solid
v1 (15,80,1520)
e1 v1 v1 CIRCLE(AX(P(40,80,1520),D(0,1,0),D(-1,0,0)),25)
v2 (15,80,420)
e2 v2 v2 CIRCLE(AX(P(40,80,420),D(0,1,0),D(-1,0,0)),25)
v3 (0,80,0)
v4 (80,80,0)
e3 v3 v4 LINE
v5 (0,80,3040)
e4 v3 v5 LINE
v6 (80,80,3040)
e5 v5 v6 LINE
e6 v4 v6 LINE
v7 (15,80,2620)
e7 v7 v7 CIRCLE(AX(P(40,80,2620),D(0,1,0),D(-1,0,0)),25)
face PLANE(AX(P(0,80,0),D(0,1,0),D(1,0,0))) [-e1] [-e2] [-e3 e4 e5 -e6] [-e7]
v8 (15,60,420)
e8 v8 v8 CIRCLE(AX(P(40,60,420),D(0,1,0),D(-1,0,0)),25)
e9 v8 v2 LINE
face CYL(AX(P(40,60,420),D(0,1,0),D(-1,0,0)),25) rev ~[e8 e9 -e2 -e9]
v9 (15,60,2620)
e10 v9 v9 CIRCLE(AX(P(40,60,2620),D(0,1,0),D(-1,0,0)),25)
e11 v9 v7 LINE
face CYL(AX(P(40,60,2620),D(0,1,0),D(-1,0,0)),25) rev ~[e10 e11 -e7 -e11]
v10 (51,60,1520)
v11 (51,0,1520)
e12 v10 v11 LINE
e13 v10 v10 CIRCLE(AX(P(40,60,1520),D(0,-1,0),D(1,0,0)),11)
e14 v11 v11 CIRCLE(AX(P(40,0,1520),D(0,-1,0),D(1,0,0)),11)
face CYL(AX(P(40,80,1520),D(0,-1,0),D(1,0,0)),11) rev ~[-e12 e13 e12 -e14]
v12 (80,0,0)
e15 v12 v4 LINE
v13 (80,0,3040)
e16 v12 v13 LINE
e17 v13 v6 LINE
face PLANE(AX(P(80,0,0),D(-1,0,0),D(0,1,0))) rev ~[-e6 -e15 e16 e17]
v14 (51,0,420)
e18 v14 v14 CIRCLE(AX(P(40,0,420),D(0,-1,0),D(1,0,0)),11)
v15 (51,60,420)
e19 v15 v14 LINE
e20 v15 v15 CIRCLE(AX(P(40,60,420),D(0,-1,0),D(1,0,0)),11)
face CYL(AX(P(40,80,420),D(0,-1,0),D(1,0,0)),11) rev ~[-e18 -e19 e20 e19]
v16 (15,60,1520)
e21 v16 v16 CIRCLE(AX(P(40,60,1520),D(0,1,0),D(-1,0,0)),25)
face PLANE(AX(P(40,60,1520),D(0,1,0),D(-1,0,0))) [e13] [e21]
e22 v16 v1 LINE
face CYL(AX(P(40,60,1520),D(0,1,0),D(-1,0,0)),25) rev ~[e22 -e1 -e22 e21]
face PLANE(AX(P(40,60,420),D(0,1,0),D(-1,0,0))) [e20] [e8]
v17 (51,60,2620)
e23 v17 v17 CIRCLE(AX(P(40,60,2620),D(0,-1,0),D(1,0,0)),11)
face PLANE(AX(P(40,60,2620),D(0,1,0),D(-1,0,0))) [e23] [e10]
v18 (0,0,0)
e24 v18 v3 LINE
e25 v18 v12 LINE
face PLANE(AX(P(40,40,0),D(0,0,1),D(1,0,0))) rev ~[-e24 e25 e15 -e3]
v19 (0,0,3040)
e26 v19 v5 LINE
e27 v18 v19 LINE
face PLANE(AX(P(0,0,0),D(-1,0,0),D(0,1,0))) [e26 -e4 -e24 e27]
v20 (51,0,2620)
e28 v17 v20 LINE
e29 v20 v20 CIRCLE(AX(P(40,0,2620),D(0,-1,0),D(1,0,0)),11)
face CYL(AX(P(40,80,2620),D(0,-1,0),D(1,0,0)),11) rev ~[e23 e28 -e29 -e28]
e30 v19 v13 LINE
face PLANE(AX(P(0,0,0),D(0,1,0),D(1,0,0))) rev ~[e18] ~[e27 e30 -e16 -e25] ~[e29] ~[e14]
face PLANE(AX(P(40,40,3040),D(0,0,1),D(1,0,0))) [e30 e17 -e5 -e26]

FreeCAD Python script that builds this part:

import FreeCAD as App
import Part
import Sketcher
Q = App.Units.Quantity


def add_polygon(sketch, points):
    """Adds a closed chain of lines whose ends are joined by coincident constraints."""
    first, n = sketch.GeometryCount, len(points)
    for a, b in zip(points, points[1:] + points[:1]):
        sketch.addGeometry(Part.LineSegment(App.Vector(*a, 0), App.Vector(*b, 0)), False)
    for i in range(n):
        sketch.addConstraint(Sketcher.Constraint("Coincident", first + i, 2, first + (i + 1) % n, 1))

doc = App.newDocument("Part")
body = doc.addObject("PartDesign::Body", "Body")

sketch1 = doc.addObject("Sketcher::SketchObject", "Sketch")
body.addObject(sketch1)
sketch1.AttachmentSupport = (doc.XY_Plane, [""])
sketch1.MapMode = "FlatFace"
add_polygon(sketch1, [(0, 80), (0, 0), (80, 0), (80, 80)])
sketch1.addConstraint(Sketcher.Constraint("Vertical", 0))
sketch1.addConstraint(Sketcher.Constraint("Horizontal", 1))
sketch1.addConstraint(Sketcher.Constraint("Vertical", 2))
sketch1.addConstraint(Sketcher.Constraint("Horizontal", 3))
sketch1.addConstraint(Sketcher.Constraint("Coincident", 0, 2, -1, 1))
sketch1.addConstraint(Sketcher.Constraint("Equal", 3, 0))
sketch1.addConstraint(Sketcher.Constraint("DistanceX", 1, 1, 1, 2, Q("80 mm")))
pad1 = doc.addObject("PartDesign::Pad", "Pad")
body.addObject(pad1)
pad1.Profile = sketch1
pad1.Length = 3040

sketch2 = doc.addObject("Sketcher::SketchObject", "Sketch001")
body.addObject(sketch2)
sketch2.AttachmentSupport = (doc.XZ_Plane, [""])
sketch2.MapMode = "FlatFace"
sketch2.AttachmentOffset = App.Placement(App.Vector(0, 0, -80), App.Rotation())
sketch2.addGeometry(Part.Circle(App.Vector(40, 2620, 0), App.Vector(0, 0, 1), 11), False)
sketch2.addGeometry(Part.Circle(App.Vector(40, 420, 0), App.Vector(0, 0, 1), 11), False)
sketch2.addGeometry(Part.Circle(App.Vector(40, 1520, 0), App.Vector(0, 0, 1), 11), False)
sketch2.addConstraint(Sketcher.Constraint("Equal", 0, 1))
sketch2.addConstraint(Sketcher.Constraint("Equal", 1, 2))
sketch2.addConstraint(Sketcher.Constraint("Vertical", 0, 3, 1, 3))
sketch2.addConstraint(Sketcher.Constraint("Vertical", 1, 3, 2, 3))
sketch2.addConstraint(Sketcher.Constraint("Diameter", 0, Q("22 mm")))
sketch2.addConstraint(Sketcher.Constraint("DistanceX", -1, 1, 0, 3, Q("40 mm")))
sketch2.addConstraint(Sketcher.Constraint("DistanceY", -1, 1, 0, 3, Q("2620 mm")))
sketch2.addConstraint(Sketcher.Constraint("DistanceY", -1, 1, 1, 3, Q("420 mm")))
sketch2.addConstraint(Sketcher.Constraint("DistanceY", -1, 1, 2, 3, Q("1520 mm")))
doc.recompute()
hole = doc.addObject("PartDesign::Hole", "Hole")
body.addObject(hole)
hole.Profile = sketch2
hole.ThreadType = "None"
hole.Diameter = 22
hole.DepthType = "Dimension"
hole.Depth = 100
hole.DrillPoint = "Flat"
hole.HoleCutType = "Counterbore"
hole.HoleCutDiameter = 50
hole.HoleCutDepth = 20
hole.Reversed = True

doc.recompute()
